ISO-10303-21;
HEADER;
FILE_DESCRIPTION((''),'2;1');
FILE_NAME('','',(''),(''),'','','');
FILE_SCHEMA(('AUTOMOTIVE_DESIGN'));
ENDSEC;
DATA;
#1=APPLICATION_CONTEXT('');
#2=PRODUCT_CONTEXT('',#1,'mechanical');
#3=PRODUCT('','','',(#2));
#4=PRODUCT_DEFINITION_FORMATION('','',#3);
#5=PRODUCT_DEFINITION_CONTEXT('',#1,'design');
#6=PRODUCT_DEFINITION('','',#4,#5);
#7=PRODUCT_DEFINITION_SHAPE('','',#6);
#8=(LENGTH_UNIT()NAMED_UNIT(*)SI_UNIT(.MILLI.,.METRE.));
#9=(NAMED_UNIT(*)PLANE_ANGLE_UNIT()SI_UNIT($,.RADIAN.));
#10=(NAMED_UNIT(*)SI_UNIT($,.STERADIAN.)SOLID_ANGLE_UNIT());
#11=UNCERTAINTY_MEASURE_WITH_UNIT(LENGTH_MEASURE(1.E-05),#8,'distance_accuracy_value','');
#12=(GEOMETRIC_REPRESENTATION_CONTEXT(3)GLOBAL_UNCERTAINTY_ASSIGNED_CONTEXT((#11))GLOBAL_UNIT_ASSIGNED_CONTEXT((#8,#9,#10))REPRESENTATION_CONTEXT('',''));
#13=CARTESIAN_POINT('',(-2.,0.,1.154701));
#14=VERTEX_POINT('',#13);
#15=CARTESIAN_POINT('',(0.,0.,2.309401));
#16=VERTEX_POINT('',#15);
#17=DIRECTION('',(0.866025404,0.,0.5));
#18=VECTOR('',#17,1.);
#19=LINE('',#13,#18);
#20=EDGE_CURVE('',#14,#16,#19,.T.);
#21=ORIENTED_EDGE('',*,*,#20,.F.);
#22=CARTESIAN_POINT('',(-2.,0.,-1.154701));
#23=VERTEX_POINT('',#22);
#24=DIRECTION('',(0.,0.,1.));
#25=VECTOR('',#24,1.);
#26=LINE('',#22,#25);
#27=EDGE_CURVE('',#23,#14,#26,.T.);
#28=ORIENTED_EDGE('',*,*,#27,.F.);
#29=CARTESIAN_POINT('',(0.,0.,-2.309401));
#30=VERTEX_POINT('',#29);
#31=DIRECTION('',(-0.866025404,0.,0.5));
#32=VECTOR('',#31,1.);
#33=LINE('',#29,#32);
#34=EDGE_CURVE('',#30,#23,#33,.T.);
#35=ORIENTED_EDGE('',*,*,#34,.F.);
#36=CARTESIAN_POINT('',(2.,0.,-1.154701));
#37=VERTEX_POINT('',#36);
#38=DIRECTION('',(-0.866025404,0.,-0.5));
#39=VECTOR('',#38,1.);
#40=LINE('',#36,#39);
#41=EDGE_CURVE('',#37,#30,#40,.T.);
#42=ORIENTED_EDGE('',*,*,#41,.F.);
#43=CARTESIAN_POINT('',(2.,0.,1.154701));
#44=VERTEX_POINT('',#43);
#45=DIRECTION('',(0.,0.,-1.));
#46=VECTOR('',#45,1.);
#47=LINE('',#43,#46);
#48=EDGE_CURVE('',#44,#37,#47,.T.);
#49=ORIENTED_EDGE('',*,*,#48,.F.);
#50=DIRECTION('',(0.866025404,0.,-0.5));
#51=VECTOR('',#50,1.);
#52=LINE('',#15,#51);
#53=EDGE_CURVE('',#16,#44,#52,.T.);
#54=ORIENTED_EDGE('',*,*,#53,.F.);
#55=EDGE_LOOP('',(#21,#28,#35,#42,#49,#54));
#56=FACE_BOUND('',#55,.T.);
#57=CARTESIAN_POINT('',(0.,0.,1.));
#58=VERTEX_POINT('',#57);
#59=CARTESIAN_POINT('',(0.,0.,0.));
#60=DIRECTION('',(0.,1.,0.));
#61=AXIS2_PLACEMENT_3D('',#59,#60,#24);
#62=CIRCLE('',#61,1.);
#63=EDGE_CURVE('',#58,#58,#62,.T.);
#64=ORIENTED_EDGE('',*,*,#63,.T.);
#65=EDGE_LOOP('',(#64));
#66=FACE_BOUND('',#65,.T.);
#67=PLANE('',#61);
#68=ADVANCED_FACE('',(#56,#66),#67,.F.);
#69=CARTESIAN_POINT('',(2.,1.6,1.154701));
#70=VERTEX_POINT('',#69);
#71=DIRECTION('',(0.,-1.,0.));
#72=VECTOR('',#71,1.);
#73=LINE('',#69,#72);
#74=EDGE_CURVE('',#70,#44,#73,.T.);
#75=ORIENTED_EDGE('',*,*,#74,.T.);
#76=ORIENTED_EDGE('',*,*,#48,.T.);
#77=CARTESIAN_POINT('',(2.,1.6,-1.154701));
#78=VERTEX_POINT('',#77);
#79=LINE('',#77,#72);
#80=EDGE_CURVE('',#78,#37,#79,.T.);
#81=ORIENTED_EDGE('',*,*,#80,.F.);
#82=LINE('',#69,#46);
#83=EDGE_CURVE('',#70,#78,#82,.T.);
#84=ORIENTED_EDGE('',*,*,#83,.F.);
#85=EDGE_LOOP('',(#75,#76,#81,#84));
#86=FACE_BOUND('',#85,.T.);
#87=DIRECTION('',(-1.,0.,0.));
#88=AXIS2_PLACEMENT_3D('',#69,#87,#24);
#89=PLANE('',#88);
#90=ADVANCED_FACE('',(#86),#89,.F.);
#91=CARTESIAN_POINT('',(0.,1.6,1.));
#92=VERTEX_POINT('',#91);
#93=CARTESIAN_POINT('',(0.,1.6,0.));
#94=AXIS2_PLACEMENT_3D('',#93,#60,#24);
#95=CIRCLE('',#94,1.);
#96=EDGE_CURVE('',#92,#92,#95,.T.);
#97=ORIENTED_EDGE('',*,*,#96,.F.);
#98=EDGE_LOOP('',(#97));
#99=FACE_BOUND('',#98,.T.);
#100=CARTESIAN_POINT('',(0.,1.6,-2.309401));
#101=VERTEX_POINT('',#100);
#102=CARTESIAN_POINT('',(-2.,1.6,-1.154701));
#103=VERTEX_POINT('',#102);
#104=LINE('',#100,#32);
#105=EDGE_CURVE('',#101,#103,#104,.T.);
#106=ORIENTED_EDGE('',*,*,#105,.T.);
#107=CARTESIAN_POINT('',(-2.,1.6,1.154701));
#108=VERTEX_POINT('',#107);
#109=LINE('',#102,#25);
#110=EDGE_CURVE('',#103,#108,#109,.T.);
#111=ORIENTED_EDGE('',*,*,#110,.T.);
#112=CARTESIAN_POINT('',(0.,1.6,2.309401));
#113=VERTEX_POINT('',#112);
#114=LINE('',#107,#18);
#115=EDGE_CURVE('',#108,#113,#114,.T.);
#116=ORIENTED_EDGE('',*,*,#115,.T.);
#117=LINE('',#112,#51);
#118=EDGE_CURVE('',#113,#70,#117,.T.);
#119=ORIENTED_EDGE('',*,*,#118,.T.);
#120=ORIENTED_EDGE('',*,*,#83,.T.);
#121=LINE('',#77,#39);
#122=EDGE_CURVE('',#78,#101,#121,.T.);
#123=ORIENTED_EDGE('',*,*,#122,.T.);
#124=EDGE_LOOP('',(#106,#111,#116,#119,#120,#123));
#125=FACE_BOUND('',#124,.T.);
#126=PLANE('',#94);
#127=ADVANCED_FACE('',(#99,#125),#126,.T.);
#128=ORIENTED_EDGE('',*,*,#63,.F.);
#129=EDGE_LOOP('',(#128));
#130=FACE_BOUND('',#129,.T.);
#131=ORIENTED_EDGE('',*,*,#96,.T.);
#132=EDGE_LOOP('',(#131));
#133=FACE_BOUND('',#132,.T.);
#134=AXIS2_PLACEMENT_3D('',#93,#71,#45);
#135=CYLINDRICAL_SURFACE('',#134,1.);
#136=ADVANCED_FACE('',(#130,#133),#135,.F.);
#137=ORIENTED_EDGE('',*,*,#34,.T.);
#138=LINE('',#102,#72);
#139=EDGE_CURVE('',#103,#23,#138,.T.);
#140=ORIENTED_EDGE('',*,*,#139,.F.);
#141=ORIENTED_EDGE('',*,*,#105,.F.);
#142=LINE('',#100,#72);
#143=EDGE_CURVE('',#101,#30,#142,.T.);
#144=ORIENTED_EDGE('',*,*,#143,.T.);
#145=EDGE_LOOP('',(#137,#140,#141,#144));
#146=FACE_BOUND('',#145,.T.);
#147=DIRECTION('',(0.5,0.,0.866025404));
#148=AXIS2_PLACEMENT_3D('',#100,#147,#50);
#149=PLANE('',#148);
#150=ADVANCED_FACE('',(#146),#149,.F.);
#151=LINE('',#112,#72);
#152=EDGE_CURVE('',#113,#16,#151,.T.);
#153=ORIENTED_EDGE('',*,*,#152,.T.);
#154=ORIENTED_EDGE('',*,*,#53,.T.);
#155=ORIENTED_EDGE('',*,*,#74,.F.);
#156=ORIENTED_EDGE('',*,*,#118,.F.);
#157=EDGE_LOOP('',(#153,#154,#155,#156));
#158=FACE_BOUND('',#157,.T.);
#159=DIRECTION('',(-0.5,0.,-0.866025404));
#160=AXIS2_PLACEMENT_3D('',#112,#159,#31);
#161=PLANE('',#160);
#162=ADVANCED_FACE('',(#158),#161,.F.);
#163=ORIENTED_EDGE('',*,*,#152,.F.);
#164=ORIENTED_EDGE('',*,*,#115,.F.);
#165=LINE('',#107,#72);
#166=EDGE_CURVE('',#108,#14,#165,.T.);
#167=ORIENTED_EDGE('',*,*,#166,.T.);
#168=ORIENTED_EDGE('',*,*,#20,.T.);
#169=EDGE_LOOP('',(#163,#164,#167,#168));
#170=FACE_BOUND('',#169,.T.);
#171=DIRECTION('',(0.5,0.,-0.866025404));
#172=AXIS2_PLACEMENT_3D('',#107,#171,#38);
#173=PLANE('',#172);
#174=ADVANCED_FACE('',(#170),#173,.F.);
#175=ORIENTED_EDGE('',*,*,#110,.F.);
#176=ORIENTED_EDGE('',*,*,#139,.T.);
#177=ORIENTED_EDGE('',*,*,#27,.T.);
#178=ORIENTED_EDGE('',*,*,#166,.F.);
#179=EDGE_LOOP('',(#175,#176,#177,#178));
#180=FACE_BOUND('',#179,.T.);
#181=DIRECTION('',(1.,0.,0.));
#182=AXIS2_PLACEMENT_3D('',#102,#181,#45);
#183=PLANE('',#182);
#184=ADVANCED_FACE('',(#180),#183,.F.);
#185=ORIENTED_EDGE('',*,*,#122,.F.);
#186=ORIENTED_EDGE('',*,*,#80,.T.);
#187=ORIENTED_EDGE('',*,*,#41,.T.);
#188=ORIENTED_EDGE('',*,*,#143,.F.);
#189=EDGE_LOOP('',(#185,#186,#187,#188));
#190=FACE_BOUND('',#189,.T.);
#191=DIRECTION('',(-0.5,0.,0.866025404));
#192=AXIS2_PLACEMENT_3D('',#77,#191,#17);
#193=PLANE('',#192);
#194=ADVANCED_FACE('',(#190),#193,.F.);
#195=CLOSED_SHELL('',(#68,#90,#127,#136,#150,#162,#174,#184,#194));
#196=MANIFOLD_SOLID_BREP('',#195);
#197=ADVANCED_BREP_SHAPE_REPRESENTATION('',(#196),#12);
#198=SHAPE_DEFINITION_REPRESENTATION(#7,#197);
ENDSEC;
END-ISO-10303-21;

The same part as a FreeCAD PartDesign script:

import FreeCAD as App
import Part
import Sketcher
from FreeCAD import Vector
Q = App.Units.Quantity


def add_polygon(sketch, points):
    """Adds a closed chain of lines whose ends are joined by coincident constraints."""
    first, n = sketch.GeometryCount, len(points)
    for a, b in zip(points, points[1:] + points[:1]):
        sketch.addGeometry(Part.LineSegment(App.Vector(*a, 0), App.Vector(*b, 0)), False)
    for i in range(n):
        sketch.addConstraint(Sketcher.Constraint("Coincident", first + i, 2, first + (i + 1) % n, 1))

doc = App.newDocument("Part")
body = doc.addObject("PartDesign::Body", "Body")

sketch1 = body.newObject("Sketcher::SketchObject", "Sketch")
sketch1.AttachmentSupport = (doc.getObject("XZ_Plane"), [""])
sketch1.MapMode = "FlatFace"
add_polygon(sketch1, [(2, 1.2), (2, -1.2), (0, -2.3), (-2, -1.2), (-2, 1.2), (0, 2.3)])
sketch1.addGeometry(Part.Circle(Vector(0, 0, 0), Vector(0, 0, 1), 1), False)
sketch1.addConstraint(Sketcher.Constraint("Vertical", 0))
sketch1.addConstraint(Sketcher.Constraint("Vertical", 3))
sketch1.addConstraint(Sketcher.Constraint("Coincident", 6, 3, -1, 1))
sketch1.addConstraint(Sketcher.Constraint("Symmetric", 0, 2, 3, 2, -1, 1))
sketch1.addConstraint(Sketcher.Constraint("Symmetric", 1, 2, 4, 2, -1, 1))
sketch1.addConstraint(Sketcher.Constraint("PointOnObject", 1, 2, -2))
sketch1.addConstraint(Sketcher.Constraint("Parallel", 2, 5))
sketch1.addConstraint(Sketcher.Constraint("Horizontal", 0, 2, 2, 2))
sketch1.addConstraint(Sketcher.Constraint("Diameter", 6, 2.0))
sketch1.addConstraint(Sketcher.Constraint("Angle", 1, Q("-150 deg")))
sketch1.addConstraint(Sketcher.Constraint("DistanceX", -1, 1, 0, 2, 2.0))
sketch1.addConstraint(Sketcher.Constraint("DistanceY", 0, 2, 0, 1, 2.309401))
pad1 = body.newObject("PartDesign::Pad", "Pad")
pad1.Profile = sketch1
pad1.Length = 1.6
pad1.Reversed = True

doc.recompute()
